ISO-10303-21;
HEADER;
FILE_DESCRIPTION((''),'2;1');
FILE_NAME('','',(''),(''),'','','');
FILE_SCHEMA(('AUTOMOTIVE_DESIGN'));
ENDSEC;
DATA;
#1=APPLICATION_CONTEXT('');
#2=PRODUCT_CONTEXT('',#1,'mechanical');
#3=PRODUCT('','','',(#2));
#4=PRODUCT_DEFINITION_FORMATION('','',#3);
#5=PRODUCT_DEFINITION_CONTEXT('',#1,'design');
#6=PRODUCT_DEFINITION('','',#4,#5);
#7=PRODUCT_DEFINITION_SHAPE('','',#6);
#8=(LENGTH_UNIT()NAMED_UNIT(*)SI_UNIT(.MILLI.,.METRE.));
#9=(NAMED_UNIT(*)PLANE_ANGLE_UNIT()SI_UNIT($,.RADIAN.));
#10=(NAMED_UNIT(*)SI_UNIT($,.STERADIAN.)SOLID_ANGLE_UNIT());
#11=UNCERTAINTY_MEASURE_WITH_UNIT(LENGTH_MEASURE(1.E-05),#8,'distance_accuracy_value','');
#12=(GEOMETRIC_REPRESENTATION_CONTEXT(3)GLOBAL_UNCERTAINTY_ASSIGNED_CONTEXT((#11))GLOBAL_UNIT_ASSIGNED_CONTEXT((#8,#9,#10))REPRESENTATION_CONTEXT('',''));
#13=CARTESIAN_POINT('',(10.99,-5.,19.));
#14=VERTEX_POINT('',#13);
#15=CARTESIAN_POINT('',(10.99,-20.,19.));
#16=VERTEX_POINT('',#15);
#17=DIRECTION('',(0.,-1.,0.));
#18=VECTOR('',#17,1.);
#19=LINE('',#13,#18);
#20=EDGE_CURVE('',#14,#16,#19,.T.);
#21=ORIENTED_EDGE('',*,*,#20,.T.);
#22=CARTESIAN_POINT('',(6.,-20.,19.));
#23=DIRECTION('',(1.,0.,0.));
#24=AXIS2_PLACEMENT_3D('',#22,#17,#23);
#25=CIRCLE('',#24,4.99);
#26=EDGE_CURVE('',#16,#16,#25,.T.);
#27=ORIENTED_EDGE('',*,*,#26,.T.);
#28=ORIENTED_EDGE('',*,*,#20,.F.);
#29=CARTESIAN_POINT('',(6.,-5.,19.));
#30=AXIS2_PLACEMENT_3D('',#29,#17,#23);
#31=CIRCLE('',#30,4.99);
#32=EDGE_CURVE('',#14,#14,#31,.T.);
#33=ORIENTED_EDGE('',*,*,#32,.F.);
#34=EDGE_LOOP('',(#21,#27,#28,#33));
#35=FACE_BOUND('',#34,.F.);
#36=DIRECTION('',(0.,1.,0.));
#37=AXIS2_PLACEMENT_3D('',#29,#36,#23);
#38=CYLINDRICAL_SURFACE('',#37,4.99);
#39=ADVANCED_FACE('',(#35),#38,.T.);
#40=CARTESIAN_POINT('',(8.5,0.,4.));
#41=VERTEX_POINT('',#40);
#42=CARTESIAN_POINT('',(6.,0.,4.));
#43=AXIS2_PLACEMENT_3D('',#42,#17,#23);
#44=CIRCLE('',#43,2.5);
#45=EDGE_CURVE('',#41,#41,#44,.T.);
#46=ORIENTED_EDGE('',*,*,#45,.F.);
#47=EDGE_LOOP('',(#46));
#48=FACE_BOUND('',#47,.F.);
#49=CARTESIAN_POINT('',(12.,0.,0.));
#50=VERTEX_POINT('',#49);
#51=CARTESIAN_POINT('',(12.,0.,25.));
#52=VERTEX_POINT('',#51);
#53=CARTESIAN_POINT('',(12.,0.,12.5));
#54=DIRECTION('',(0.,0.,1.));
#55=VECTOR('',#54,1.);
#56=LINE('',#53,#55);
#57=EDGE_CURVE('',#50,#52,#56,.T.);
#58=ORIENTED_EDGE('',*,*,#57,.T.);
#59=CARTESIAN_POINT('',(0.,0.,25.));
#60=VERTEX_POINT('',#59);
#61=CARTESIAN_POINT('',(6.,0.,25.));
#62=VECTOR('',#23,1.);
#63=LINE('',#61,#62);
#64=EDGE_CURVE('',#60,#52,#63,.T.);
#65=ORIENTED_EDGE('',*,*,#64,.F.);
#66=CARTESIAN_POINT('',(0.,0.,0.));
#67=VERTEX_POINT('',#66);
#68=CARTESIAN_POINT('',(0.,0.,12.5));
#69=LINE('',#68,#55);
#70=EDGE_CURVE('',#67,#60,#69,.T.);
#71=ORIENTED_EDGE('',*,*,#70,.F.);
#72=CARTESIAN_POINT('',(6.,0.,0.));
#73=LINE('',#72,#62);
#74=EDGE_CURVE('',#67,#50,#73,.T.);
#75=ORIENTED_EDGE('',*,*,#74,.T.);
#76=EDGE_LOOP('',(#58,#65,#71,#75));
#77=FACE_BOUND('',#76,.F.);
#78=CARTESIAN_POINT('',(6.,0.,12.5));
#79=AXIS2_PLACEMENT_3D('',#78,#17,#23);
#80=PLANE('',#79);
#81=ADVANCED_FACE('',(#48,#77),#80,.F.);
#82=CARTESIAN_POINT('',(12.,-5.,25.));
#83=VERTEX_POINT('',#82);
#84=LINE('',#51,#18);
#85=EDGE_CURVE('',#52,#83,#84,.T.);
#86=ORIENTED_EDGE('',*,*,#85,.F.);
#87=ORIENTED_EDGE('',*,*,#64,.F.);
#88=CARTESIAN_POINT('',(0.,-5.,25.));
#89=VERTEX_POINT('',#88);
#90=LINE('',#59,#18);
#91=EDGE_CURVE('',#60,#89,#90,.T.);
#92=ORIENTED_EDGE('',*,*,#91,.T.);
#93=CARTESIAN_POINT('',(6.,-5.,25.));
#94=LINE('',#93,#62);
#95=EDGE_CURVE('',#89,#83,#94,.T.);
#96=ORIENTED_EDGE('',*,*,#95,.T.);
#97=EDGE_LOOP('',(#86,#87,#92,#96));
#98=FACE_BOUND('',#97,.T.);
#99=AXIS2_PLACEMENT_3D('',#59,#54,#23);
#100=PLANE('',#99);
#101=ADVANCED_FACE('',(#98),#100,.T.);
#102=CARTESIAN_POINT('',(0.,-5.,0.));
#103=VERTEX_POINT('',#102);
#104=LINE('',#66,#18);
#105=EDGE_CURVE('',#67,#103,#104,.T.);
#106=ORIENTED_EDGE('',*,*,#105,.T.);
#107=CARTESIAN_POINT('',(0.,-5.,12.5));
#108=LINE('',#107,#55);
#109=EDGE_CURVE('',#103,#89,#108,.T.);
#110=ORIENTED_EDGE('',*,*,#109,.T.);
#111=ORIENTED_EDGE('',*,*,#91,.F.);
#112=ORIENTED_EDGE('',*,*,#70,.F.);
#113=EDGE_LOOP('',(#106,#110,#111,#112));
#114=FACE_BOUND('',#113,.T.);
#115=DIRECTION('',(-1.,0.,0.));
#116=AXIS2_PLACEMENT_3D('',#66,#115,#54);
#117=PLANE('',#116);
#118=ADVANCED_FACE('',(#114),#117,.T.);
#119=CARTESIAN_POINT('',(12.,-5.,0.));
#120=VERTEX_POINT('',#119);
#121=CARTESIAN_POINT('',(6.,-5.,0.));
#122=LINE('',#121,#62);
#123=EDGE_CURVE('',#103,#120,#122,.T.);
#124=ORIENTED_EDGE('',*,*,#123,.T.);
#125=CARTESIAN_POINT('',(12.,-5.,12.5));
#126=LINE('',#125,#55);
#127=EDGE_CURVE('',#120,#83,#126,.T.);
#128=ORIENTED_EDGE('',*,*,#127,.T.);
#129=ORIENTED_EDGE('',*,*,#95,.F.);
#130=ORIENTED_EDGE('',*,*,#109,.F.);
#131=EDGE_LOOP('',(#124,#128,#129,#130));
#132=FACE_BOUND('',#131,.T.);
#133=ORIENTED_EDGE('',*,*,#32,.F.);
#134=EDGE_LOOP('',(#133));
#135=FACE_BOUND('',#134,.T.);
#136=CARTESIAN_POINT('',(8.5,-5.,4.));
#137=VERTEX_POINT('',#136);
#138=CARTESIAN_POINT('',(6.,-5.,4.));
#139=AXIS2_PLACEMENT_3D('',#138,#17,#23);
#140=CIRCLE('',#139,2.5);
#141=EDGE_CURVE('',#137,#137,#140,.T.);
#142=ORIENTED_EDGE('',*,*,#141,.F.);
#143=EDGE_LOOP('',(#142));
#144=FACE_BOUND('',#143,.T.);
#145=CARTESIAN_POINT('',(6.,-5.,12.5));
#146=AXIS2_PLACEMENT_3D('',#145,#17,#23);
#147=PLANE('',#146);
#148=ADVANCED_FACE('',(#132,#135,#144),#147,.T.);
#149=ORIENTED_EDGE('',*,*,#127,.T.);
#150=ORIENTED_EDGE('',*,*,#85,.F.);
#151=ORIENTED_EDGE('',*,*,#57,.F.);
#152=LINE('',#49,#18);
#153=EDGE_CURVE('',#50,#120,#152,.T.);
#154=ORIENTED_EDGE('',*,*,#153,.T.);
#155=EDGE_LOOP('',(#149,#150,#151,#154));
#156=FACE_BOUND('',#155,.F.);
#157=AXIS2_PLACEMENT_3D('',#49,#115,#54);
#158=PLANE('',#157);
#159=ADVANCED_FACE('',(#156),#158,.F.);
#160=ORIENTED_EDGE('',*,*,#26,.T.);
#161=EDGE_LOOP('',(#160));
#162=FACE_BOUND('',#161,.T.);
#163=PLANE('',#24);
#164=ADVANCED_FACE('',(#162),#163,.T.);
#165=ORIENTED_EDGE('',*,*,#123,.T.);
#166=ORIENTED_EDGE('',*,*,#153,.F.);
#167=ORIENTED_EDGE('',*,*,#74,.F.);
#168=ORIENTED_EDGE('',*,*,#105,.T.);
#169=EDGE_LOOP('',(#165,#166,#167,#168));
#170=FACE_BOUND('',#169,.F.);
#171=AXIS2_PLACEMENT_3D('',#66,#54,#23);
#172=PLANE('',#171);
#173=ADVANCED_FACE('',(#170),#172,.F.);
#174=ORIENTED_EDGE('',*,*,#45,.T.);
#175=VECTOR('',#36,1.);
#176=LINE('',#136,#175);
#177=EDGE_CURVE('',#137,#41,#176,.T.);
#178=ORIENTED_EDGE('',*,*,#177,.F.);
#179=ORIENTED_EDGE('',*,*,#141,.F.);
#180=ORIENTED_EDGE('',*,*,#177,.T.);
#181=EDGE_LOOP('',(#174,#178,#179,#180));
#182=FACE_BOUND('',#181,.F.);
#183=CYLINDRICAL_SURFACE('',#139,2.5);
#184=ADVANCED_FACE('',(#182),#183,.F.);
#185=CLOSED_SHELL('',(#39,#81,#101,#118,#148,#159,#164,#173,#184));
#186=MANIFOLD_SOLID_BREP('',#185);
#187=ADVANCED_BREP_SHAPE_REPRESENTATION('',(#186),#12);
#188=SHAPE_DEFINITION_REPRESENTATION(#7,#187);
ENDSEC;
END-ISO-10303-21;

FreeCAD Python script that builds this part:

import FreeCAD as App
import Part
import Sketcher

V = App.Vector
Q = App.Units.Quantity

doc = App.newDocument("Part")
body = doc.addObject("PartDesign::Body", "Body")

# Sketch on XZ plane
sketch1 = doc.addObject("Sketcher::SketchObject", "Sketch")
body.addObject(sketch1)
sketch1.AttachmentSupport = (doc.XZ_Plane, [""])
sketch1.MapMode = "FlatFace"
sketch1.addGeometry(Part.LineSegment(V(0, 25, 0), V(0, 0, 0)), False)
sketch1.addGeometry(Part.LineSegment(V(0, 0, 0), V(12, 0, 0)), False)
sketch1.addGeometry(Part.LineSegment(V(12, 0, 0), V(12, 25, 0)), False)
sketch1.addGeometry(Part.LineSegment(V(12, 25, 0), V(0, 25, 0)), False)
sketch1.addConstraint(Sketcher.Constraint("Coincident", 0, 2, 1, 1))
sketch1.addConstraint(Sketcher.Constraint("Coincident", 1, 2, 2, 1))
sketch1.addConstraint(Sketcher.Constraint("Coincident", 2, 2, 3, 1))
sketch1.addConstraint(Sketcher.Constraint("Coincident", 3, 2, 0, 1))
sketch1.addConstraint(Sketcher.Constraint("Vertical", 0))
sketch1.addConstraint(Sketcher.Constraint("Horizontal", 1))
sketch1.addConstraint(Sketcher.Constraint("Vertical", 2))
sketch1.addConstraint(Sketcher.Constraint("Horizontal", 3))
sketch1.addConstraint(Sketcher.Constraint("Coincident", 0, 2, -1, 1))
sketch1.addConstraint(Sketcher.Constraint("DistanceX", 1, 1, 1, 2, Q("12 mm")))
sketch1.addConstraint(Sketcher.Constraint("DistanceY", 0, 2, 0, 1, Q("25 mm")))
pad1 = doc.addObject("PartDesign::Pad", "Pad")
body.addObject(pad1)
pad1.Profile = sketch1
pad1.Length = 5

# Sketch on XZ plane
sketch2 = doc.addObject("Sketcher::SketchObject", "Sketch001")
body.addObject(sketch2)
sketch2.AttachmentSupport = (doc.XZ_Plane, [""])
sketch2.MapMode = "FlatFace"
sketch2.AttachmentOffset = App.Placement(V(0, 0, 5), App.Rotation())
sketch2.addGeometry(Part.Circle(V(6, 4, 0), V(0, 0, 1), 2.5), False)
sketch2.addConstraint(Sketcher.Constraint("Diameter", 0, Q("5 mm")))
sketch2.addConstraint(Sketcher.Constraint("DistanceX", -1, 1, 0, 3, Q("6 mm")))
sketch2.addConstraint(Sketcher.Constraint("DistanceY", -1, 1, 0, 3, Q("4 mm")))
pocket1 = doc.addObject("PartDesign::Pocket", "Pocket")
body.addObject(pocket1)
pocket1.Profile = sketch2
pocket1.Type = "ThroughAll"

# Sketch on XZ plane
sketch3 = doc.addObject("Sketcher::SketchObject", "Sketch002")
body.addObject(sketch3)
sketch3.AttachmentSupport = (doc.XZ_Plane, [""])
sketch3.MapMode = "FlatFace"
sketch3.AttachmentOffset = App.Placement(V(0, 0, 5), App.Rotation())
sketch3.addGeometry(Part.Circle(V(6, 19, 0), V(0, 0, 1), 5), False)
sketch3.addConstraint(Sketcher.Constraint("Diameter", 0, Q("9.98 mm")))
sketch3.addConstraint(Sketcher.Constraint("DistanceX", -1, 1, 0, 3, Q("6 mm")))
sketch3.addConstraint(Sketcher.Constraint("DistanceY", -1, 1, 0, 3, Q("19 mm")))
pad2 = doc.addObject("PartDesign::Pad", "Pad001")
body.addObject(pad2)
pad2.Profile = sketch3
pad2.Length = 15

doc.recompute()
